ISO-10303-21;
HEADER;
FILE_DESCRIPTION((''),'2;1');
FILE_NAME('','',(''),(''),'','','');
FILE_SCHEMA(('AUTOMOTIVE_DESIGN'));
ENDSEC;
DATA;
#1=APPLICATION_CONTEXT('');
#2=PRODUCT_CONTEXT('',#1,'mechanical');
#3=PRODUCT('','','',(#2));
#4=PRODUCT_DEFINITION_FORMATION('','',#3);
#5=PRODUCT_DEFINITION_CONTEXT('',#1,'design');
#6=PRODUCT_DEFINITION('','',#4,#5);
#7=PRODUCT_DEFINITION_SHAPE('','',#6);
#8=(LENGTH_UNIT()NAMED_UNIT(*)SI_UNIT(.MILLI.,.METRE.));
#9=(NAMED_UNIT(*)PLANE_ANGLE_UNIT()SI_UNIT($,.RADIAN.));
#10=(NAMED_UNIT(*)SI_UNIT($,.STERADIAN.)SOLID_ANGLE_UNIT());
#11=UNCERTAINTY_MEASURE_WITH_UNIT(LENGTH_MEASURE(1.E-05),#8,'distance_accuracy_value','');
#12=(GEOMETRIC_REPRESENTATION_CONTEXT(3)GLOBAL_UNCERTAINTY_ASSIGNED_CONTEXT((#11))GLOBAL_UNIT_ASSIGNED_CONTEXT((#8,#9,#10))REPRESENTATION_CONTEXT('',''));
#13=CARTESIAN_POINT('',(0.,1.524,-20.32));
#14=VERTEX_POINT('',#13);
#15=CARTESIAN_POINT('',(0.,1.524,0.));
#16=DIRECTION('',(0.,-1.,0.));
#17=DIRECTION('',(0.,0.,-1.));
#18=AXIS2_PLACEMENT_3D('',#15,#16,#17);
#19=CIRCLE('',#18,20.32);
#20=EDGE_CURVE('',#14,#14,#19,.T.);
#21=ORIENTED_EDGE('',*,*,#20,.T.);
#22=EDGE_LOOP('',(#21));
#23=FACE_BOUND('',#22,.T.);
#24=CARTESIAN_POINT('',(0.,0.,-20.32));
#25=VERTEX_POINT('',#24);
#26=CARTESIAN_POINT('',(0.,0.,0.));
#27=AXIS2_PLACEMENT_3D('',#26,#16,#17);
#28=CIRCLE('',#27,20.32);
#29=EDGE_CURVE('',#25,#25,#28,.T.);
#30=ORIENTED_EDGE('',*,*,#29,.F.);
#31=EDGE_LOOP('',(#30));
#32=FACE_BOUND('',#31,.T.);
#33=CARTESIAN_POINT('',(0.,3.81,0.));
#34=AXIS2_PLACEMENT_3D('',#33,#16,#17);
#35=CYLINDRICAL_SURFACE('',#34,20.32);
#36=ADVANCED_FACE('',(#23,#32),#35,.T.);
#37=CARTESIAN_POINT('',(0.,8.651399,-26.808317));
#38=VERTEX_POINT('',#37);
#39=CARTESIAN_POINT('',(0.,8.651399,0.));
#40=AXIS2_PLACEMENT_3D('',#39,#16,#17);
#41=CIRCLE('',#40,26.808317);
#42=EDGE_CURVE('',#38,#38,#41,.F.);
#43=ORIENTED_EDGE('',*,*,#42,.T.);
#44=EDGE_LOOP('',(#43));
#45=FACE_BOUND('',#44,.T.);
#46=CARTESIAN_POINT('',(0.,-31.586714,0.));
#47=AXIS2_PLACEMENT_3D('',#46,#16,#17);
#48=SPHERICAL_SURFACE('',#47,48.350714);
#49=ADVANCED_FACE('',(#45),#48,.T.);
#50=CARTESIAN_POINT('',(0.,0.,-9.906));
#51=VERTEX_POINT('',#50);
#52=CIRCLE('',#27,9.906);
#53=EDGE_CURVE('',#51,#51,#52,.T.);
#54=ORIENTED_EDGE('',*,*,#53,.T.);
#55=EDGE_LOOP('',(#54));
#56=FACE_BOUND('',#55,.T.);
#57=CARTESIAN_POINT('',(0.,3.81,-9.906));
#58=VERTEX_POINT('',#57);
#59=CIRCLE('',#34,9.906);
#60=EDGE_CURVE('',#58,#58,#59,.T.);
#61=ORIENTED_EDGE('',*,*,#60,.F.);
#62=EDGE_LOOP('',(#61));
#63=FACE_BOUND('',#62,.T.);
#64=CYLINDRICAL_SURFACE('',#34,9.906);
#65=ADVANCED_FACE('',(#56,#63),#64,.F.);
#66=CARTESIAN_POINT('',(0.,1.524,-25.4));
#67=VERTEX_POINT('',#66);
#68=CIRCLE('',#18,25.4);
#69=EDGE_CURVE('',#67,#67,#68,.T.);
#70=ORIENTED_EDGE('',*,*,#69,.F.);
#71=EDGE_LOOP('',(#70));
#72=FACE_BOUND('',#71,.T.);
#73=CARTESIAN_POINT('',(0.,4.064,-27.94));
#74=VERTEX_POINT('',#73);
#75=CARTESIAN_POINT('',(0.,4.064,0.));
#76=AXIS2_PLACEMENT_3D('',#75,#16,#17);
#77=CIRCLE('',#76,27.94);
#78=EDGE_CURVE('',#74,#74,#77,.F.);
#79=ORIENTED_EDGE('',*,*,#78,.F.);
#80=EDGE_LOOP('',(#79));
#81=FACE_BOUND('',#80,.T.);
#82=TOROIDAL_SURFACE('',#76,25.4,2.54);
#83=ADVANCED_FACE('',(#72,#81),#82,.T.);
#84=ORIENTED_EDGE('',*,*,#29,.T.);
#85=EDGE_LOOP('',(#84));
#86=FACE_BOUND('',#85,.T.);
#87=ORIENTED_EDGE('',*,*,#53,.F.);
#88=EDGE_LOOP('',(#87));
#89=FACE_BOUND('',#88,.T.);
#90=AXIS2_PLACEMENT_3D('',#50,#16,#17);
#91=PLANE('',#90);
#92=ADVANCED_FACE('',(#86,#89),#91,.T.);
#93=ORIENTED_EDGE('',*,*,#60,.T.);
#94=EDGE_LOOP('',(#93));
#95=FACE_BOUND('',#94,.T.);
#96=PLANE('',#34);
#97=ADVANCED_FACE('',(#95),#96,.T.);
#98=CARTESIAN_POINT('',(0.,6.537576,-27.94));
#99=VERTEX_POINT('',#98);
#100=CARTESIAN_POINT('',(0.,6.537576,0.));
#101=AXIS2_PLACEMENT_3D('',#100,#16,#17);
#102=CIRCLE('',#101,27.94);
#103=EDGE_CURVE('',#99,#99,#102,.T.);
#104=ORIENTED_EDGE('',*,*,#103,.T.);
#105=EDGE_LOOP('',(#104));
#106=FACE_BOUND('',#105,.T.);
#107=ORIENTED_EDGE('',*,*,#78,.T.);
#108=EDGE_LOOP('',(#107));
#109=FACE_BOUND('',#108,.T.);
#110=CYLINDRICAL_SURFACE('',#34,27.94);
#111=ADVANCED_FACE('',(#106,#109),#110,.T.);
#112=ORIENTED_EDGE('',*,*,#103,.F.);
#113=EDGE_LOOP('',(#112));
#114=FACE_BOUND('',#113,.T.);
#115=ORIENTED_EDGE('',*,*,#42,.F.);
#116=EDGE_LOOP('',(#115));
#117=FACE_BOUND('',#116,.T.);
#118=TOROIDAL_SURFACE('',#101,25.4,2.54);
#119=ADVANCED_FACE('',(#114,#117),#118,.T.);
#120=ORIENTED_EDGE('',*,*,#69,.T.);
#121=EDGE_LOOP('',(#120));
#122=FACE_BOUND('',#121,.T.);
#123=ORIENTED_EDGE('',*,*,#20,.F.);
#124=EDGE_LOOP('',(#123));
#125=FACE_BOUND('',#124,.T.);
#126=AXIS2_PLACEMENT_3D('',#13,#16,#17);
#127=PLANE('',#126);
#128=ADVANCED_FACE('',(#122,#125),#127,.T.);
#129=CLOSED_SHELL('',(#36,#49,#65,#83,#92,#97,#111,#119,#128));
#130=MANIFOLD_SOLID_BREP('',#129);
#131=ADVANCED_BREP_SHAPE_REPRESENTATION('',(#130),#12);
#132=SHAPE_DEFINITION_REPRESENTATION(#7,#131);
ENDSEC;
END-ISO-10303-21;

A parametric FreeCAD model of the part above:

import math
import FreeCAD as App
import Part
import Sketcher

V = App.Vector
Q = App.Units.Quantity


def edges_at(feature, points):
    """Names of the edges that pass closest to the given points."""
    edges = feature.Shape.Edges
    near = lambda p: min(range(len(edges)), key=lambda i: edges[i].distToShape(Part.Vertex(*p))[0])
    return sorted({f"Edge{near(p) + 1}" for p in points})

doc = App.newDocument("Part")
params = doc.addObject("Spreadsheet::Sheet", "Params")
for row, (alias, value) in enumerate([
    ("sketch1_height", "0.3 in"),
    ("sketch1_width", "0.51 in"),
    ("sketch1_width2", "0.15 in"),
    ("sketch1_width3", "0.06 in"),
    ("sketch1_width4", "0.25 in"),
    ("revolution_angle", "360 deg"),
    ("fillet_radius", "0.1 in"),
], start=1):
    params.set(f"A{row}", alias)
    params.set(f"B{row}", "=" + value)
    params.setAlias(f"B{row}", alias)

body = doc.addObject("PartDesign::Body", "Body")

sketch1 = body.newObject("Sketcher::SketchObject", "Sketch")
sketch1.AttachmentSupport = (doc.getObject("YZ_Plane"), [""])
sketch1.MapMode = "FlatFace"
sketch1.addGeometry([
    Part.LineSegment(V(16.764, 0, 0), V(3.81, 0, 0)),
    Part.LineSegment(V(3.81, 0, 0), V(3.81, -9.906, 0)),
    Part.LineSegment(V(3.81, -9.906, 0), V(0, -9.906, 0)),
    Part.LineSegment(V(0, -9.906, 0), V(0, -20.32, 0)),
    Part.LineSegment(V(0, -20.32, 0), V(1.524, -20.32, 0)),
    Part.LineSegment(V(1.524, -20.32, 0), V(1.524, -27.94, 0)),
    Part.LineSegment(V(1.524, -27.94, 0), V(7.874, -27.94, 0)),
    Part.ArcOfCircle(Part.Circle(V(-31.586714, 0, 0), V(0, 0, 1), 48.350714), math.radians(-35.300248), math.radians(0)),
], False)
sketch1.addConstraint([
    Sketcher.Constraint("Coincident", 0, 2, 1, 1),
    Sketcher.Constraint("Coincident", 1, 2, 2, 1),
    Sketcher.Constraint("Coincident", 2, 2, 3, 1),
    Sketcher.Constraint("Coincident", 3, 2, 4, 1),
    Sketcher.Constraint("Coincident", 4, 2, 5, 1),
    Sketcher.Constraint("Coincident", 5, 2, 6, 1),
    Sketcher.Constraint("Coincident", 6, 2, 7, 1),
    Sketcher.Constraint("Coincident", 7, 2, 0, 1),
    Sketcher.Constraint("Horizontal", 0),
    Sketcher.Constraint("Vertical", 1),
    Sketcher.Constraint("Horizontal", 2),
    Sketcher.Constraint("Vertical", 3),
    Sketcher.Constraint("Horizontal", 4),
    Sketcher.Constraint("Vertical", 5),
    Sketcher.Constraint("Horizontal", 6),
    Sketcher.Constraint("PointOnObject", 7, 3, -1),
    Sketcher.Constraint("PointOnObject", 0, 2, -1),
    Sketcher.Constraint("PointOnObject", 2, 2, -2),
    Sketcher.Constraint("DistanceY", 5, 2, 5, 1, Q("0.3 in")),
    Sketcher.Constraint("DistanceX", 0, 2, 0, 1, Q("0.51 in")),
    Sketcher.Constraint("DistanceX", 2, 2, 2, 1, Q("0.15 in")),
    Sketcher.Constraint("DistanceX", 4, 1, 4, 2, Q("0.06 in")),
    Sketcher.Constraint("DistanceX", 6, 1, 6, 2, Q("0.25 in")),
    Sketcher.Constraint("DistanceY", 1, 2, 1, 1, Q("0.39 in")),
    Sketcher.Constraint("DistanceY", 3, 2, 3, 1, Q("0.41 in")),
])
sketch1.setExpression("Constraints[18]", "Params.sketch1_height")
sketch1.setExpression("Constraints[19]", "Params.sketch1_width")
sketch1.setExpression("Constraints[20]", "Params.sketch1_width2")
sketch1.setExpression("Constraints[21]", "Params.sketch1_width3")
sketch1.setExpression("Constraints[22]", "Params.sketch1_width4")
revolution = body.newObject("PartDesign::Revolution", "Revolution")
revolution.Profile = sketch1
revolution.ReferenceAxis = (sketch1, ["H_Axis"])
revolution.setExpression("Angle", "Params.revolution_angle")
doc.recompute()

fillet = body.newObject("PartDesign::Fillet", "Fillet")
fillet.Base = (revolution, edges_at(revolution, [(0, 7.874, 27.94), (0, 1.524, 27.94)]))
fillet.setExpression("Radius", "Params.fillet_radius")

doc.recompute()
